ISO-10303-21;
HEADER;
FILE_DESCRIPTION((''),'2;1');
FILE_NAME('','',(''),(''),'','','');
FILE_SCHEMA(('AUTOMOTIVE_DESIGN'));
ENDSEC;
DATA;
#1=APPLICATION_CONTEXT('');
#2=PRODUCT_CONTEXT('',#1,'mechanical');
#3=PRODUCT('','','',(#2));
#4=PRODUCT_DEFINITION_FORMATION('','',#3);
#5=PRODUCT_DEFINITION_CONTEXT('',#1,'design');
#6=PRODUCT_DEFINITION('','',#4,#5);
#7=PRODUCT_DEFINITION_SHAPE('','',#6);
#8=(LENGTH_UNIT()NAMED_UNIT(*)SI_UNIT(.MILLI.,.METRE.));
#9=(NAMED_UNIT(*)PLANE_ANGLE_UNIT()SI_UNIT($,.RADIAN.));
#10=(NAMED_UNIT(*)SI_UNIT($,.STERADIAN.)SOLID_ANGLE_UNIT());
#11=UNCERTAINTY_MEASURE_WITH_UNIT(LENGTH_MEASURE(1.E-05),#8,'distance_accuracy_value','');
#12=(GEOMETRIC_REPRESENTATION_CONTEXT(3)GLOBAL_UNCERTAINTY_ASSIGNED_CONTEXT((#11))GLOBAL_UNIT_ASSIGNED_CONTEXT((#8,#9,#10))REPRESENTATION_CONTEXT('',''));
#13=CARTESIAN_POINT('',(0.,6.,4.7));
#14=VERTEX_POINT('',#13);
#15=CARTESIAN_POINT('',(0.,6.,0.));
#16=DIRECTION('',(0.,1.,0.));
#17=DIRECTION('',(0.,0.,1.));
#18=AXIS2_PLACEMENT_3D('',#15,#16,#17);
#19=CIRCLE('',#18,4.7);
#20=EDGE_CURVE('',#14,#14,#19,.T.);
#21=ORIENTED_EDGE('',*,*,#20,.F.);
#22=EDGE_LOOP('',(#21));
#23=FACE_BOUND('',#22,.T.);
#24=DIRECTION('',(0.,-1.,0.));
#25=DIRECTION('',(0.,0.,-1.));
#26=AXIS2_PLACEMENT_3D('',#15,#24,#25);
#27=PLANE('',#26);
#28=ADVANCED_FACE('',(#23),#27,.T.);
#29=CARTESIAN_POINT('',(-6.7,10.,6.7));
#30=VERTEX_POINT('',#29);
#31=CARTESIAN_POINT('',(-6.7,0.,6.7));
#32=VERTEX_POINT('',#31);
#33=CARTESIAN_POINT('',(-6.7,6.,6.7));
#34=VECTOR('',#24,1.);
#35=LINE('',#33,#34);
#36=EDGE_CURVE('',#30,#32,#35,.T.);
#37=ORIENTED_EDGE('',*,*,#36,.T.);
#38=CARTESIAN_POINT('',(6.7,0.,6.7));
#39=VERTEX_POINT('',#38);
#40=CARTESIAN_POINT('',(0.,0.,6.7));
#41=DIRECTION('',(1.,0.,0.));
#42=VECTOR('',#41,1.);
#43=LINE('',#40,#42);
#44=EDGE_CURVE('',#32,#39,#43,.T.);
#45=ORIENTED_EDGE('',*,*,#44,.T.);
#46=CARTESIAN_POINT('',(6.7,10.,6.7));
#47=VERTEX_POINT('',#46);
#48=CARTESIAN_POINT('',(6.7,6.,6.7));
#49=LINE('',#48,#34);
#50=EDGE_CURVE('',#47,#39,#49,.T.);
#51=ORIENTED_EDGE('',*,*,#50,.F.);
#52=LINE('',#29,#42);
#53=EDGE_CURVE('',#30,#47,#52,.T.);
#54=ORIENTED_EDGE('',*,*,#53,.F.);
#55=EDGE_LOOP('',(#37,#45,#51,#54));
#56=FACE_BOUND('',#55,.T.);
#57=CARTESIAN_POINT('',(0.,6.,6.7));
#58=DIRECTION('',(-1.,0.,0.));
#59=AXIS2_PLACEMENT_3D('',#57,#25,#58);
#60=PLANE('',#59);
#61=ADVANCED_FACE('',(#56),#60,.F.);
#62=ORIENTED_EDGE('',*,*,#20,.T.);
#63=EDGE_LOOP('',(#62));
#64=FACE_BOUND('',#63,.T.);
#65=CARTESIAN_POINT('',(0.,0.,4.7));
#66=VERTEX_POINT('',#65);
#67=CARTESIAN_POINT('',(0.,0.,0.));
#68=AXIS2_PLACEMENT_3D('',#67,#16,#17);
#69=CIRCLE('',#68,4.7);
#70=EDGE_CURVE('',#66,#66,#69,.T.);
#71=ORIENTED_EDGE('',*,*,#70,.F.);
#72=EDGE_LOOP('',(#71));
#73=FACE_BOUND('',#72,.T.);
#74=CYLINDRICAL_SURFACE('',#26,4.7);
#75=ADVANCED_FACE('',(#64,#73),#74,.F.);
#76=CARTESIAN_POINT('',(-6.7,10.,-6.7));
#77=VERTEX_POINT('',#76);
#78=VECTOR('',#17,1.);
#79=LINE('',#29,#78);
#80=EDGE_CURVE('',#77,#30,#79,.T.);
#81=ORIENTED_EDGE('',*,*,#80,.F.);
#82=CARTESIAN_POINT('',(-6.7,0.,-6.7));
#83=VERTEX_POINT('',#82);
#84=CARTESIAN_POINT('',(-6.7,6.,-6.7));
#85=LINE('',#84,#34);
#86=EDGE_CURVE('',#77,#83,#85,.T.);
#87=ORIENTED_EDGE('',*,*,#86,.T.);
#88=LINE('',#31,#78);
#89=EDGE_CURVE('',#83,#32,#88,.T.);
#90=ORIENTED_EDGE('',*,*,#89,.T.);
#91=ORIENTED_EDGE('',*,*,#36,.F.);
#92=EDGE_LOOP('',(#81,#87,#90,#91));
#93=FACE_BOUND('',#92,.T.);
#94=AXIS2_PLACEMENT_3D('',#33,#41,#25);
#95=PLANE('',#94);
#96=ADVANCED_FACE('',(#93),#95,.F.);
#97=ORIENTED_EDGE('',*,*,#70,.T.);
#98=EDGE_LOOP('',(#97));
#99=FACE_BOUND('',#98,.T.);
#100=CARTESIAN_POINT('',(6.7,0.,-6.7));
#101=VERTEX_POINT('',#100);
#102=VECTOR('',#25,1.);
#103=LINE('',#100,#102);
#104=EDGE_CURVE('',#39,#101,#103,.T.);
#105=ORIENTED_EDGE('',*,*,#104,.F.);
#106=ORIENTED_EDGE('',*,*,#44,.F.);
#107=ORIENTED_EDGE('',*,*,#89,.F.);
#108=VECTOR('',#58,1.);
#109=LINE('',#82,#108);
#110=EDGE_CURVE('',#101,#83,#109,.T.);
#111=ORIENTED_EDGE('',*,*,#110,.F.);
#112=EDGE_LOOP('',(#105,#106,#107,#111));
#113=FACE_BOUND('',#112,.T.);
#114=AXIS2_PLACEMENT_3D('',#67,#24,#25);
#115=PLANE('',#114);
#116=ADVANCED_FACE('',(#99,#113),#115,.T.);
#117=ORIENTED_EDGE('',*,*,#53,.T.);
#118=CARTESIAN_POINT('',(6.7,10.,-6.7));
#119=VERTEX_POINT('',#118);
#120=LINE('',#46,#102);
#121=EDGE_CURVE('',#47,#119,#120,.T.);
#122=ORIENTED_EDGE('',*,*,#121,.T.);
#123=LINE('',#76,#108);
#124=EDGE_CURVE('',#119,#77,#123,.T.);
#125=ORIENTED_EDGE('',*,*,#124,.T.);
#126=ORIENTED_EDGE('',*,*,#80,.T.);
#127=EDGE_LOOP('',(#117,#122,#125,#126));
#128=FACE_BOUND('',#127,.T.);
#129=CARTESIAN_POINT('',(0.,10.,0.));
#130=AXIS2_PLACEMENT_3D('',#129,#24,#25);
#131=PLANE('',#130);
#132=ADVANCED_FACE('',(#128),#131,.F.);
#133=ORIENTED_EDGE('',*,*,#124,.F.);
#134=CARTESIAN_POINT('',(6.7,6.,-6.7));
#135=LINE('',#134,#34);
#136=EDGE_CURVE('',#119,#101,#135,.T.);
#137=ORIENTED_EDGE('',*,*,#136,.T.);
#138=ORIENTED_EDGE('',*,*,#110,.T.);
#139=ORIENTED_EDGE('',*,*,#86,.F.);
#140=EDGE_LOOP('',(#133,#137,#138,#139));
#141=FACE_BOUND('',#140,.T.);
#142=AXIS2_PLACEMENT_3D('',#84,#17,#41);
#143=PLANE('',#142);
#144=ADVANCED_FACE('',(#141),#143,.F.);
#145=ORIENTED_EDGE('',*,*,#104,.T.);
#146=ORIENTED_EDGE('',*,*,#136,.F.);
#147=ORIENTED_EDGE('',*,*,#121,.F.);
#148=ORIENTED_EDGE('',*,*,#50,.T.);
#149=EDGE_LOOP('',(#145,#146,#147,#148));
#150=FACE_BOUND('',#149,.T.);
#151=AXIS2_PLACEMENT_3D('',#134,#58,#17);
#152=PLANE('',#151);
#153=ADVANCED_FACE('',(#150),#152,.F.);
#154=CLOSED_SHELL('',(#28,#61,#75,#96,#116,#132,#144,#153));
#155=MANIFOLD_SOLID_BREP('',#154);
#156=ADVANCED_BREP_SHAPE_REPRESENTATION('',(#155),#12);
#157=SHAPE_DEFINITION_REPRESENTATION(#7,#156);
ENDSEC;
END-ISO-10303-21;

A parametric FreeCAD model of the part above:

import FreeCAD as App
import Part
import Sketcher
from FreeCAD import Vector


def add_polygon(sketch, points):
    """Adds a closed chain of lines whose ends are joined by coincident constraints."""
    first, n = sketch.GeometryCount, len(points)
    for a, b in zip(points, points[1:] + points[:1]):
        sketch.addGeometry(Part.LineSegment(App.Vector(*a, 0), App.Vector(*b, 0)), False)
    for i in range(n):
        sketch.addConstraint(Sketcher.Constraint("Coincident", first + i, 2, first + (i + 1) % n, 1))

doc = App.newDocument("Part")
body = doc.addObject("PartDesign::Body", "Body")

# Sketch on XZ plane
sketch1 = doc.addObject("Sketcher::SketchObject", "Sketch")
body.addObject(sketch1)
sketch1.AttachmentSupport = (doc.XZ_Plane, [""])
sketch1.MapMode = "FlatFace"
add_polygon(sketch1, [(-6.7, 6.7), (6.7, 6.7), (6.7, -6.7), (-6.7, -6.7)])  # lines 0-3
sketch1.addGeometry(Part.Circle(Vector(0, 0, 0), Vector(0, 0, 1), 4.7), False)  # 4
sketch1.addConstraint([
    Sketcher.Constraint("Horizontal", 0),
    Sketcher.Constraint("Vertical", 1),
    Sketcher.Constraint("Horizontal", 2),
    Sketcher.Constraint("Vertical", 3),
    Sketcher.Constraint("Coincident", 4, 3, -1, 1),
    Sketcher.Constraint("Symmetric", 0, 2, 2, 2, -1, 1),
    Sketcher.Constraint("Equal", 2, 1),
    Sketcher.Constraint("Diameter", 4, 9.4),
    Sketcher.Constraint("DistanceX", 0, 1, 0, 2, 13.4),
])
pad1 = doc.addObject("PartDesign::Pad", "Pad")
body.addObject(pad1)
pad1.Profile = sketch1
pad1.Length = 6
pad1.Reversed = True

# Sketch on XZ plane
sketch2 = doc.addObject("Sketcher::SketchObject", "Sketch001")
body.addObject(sketch2)
sketch2.AttachmentSupport = (doc.XZ_Plane, [""])
sketch2.MapMode = "FlatFace"
sketch2.AttachmentOffset = App.Placement(Vector(0, 0, -6), App.Rotation())
add_polygon(sketch2, [(-6.7, -6.7), (-6.7, 6.7), (6.7, 6.7), (6.7, -6.7)])  # lines 0-3
sketch2.addConstraint([
    Sketcher.Constraint("Vertical", 0),
    Sketcher.Constraint("Horizontal", 1),
    Sketcher.Constraint("Vertical", 2),
    Sketcher.Constraint("Horizontal", 3),
    Sketcher.Constraint("Symmetric", 0, 2, 2, 2, -1, 1),
    Sketcher.Constraint("Equal", 3, 0),
    Sketcher.Constraint("DistanceX", 1, 1, 1, 2, 13.4),
])
pad2 = doc.addObject("PartDesign::Pad", "Pad001")
body.addObject(pad2)
pad2.Profile = sketch2
pad2.Length = 4
pad2.Reversed = True

doc.recompute()
